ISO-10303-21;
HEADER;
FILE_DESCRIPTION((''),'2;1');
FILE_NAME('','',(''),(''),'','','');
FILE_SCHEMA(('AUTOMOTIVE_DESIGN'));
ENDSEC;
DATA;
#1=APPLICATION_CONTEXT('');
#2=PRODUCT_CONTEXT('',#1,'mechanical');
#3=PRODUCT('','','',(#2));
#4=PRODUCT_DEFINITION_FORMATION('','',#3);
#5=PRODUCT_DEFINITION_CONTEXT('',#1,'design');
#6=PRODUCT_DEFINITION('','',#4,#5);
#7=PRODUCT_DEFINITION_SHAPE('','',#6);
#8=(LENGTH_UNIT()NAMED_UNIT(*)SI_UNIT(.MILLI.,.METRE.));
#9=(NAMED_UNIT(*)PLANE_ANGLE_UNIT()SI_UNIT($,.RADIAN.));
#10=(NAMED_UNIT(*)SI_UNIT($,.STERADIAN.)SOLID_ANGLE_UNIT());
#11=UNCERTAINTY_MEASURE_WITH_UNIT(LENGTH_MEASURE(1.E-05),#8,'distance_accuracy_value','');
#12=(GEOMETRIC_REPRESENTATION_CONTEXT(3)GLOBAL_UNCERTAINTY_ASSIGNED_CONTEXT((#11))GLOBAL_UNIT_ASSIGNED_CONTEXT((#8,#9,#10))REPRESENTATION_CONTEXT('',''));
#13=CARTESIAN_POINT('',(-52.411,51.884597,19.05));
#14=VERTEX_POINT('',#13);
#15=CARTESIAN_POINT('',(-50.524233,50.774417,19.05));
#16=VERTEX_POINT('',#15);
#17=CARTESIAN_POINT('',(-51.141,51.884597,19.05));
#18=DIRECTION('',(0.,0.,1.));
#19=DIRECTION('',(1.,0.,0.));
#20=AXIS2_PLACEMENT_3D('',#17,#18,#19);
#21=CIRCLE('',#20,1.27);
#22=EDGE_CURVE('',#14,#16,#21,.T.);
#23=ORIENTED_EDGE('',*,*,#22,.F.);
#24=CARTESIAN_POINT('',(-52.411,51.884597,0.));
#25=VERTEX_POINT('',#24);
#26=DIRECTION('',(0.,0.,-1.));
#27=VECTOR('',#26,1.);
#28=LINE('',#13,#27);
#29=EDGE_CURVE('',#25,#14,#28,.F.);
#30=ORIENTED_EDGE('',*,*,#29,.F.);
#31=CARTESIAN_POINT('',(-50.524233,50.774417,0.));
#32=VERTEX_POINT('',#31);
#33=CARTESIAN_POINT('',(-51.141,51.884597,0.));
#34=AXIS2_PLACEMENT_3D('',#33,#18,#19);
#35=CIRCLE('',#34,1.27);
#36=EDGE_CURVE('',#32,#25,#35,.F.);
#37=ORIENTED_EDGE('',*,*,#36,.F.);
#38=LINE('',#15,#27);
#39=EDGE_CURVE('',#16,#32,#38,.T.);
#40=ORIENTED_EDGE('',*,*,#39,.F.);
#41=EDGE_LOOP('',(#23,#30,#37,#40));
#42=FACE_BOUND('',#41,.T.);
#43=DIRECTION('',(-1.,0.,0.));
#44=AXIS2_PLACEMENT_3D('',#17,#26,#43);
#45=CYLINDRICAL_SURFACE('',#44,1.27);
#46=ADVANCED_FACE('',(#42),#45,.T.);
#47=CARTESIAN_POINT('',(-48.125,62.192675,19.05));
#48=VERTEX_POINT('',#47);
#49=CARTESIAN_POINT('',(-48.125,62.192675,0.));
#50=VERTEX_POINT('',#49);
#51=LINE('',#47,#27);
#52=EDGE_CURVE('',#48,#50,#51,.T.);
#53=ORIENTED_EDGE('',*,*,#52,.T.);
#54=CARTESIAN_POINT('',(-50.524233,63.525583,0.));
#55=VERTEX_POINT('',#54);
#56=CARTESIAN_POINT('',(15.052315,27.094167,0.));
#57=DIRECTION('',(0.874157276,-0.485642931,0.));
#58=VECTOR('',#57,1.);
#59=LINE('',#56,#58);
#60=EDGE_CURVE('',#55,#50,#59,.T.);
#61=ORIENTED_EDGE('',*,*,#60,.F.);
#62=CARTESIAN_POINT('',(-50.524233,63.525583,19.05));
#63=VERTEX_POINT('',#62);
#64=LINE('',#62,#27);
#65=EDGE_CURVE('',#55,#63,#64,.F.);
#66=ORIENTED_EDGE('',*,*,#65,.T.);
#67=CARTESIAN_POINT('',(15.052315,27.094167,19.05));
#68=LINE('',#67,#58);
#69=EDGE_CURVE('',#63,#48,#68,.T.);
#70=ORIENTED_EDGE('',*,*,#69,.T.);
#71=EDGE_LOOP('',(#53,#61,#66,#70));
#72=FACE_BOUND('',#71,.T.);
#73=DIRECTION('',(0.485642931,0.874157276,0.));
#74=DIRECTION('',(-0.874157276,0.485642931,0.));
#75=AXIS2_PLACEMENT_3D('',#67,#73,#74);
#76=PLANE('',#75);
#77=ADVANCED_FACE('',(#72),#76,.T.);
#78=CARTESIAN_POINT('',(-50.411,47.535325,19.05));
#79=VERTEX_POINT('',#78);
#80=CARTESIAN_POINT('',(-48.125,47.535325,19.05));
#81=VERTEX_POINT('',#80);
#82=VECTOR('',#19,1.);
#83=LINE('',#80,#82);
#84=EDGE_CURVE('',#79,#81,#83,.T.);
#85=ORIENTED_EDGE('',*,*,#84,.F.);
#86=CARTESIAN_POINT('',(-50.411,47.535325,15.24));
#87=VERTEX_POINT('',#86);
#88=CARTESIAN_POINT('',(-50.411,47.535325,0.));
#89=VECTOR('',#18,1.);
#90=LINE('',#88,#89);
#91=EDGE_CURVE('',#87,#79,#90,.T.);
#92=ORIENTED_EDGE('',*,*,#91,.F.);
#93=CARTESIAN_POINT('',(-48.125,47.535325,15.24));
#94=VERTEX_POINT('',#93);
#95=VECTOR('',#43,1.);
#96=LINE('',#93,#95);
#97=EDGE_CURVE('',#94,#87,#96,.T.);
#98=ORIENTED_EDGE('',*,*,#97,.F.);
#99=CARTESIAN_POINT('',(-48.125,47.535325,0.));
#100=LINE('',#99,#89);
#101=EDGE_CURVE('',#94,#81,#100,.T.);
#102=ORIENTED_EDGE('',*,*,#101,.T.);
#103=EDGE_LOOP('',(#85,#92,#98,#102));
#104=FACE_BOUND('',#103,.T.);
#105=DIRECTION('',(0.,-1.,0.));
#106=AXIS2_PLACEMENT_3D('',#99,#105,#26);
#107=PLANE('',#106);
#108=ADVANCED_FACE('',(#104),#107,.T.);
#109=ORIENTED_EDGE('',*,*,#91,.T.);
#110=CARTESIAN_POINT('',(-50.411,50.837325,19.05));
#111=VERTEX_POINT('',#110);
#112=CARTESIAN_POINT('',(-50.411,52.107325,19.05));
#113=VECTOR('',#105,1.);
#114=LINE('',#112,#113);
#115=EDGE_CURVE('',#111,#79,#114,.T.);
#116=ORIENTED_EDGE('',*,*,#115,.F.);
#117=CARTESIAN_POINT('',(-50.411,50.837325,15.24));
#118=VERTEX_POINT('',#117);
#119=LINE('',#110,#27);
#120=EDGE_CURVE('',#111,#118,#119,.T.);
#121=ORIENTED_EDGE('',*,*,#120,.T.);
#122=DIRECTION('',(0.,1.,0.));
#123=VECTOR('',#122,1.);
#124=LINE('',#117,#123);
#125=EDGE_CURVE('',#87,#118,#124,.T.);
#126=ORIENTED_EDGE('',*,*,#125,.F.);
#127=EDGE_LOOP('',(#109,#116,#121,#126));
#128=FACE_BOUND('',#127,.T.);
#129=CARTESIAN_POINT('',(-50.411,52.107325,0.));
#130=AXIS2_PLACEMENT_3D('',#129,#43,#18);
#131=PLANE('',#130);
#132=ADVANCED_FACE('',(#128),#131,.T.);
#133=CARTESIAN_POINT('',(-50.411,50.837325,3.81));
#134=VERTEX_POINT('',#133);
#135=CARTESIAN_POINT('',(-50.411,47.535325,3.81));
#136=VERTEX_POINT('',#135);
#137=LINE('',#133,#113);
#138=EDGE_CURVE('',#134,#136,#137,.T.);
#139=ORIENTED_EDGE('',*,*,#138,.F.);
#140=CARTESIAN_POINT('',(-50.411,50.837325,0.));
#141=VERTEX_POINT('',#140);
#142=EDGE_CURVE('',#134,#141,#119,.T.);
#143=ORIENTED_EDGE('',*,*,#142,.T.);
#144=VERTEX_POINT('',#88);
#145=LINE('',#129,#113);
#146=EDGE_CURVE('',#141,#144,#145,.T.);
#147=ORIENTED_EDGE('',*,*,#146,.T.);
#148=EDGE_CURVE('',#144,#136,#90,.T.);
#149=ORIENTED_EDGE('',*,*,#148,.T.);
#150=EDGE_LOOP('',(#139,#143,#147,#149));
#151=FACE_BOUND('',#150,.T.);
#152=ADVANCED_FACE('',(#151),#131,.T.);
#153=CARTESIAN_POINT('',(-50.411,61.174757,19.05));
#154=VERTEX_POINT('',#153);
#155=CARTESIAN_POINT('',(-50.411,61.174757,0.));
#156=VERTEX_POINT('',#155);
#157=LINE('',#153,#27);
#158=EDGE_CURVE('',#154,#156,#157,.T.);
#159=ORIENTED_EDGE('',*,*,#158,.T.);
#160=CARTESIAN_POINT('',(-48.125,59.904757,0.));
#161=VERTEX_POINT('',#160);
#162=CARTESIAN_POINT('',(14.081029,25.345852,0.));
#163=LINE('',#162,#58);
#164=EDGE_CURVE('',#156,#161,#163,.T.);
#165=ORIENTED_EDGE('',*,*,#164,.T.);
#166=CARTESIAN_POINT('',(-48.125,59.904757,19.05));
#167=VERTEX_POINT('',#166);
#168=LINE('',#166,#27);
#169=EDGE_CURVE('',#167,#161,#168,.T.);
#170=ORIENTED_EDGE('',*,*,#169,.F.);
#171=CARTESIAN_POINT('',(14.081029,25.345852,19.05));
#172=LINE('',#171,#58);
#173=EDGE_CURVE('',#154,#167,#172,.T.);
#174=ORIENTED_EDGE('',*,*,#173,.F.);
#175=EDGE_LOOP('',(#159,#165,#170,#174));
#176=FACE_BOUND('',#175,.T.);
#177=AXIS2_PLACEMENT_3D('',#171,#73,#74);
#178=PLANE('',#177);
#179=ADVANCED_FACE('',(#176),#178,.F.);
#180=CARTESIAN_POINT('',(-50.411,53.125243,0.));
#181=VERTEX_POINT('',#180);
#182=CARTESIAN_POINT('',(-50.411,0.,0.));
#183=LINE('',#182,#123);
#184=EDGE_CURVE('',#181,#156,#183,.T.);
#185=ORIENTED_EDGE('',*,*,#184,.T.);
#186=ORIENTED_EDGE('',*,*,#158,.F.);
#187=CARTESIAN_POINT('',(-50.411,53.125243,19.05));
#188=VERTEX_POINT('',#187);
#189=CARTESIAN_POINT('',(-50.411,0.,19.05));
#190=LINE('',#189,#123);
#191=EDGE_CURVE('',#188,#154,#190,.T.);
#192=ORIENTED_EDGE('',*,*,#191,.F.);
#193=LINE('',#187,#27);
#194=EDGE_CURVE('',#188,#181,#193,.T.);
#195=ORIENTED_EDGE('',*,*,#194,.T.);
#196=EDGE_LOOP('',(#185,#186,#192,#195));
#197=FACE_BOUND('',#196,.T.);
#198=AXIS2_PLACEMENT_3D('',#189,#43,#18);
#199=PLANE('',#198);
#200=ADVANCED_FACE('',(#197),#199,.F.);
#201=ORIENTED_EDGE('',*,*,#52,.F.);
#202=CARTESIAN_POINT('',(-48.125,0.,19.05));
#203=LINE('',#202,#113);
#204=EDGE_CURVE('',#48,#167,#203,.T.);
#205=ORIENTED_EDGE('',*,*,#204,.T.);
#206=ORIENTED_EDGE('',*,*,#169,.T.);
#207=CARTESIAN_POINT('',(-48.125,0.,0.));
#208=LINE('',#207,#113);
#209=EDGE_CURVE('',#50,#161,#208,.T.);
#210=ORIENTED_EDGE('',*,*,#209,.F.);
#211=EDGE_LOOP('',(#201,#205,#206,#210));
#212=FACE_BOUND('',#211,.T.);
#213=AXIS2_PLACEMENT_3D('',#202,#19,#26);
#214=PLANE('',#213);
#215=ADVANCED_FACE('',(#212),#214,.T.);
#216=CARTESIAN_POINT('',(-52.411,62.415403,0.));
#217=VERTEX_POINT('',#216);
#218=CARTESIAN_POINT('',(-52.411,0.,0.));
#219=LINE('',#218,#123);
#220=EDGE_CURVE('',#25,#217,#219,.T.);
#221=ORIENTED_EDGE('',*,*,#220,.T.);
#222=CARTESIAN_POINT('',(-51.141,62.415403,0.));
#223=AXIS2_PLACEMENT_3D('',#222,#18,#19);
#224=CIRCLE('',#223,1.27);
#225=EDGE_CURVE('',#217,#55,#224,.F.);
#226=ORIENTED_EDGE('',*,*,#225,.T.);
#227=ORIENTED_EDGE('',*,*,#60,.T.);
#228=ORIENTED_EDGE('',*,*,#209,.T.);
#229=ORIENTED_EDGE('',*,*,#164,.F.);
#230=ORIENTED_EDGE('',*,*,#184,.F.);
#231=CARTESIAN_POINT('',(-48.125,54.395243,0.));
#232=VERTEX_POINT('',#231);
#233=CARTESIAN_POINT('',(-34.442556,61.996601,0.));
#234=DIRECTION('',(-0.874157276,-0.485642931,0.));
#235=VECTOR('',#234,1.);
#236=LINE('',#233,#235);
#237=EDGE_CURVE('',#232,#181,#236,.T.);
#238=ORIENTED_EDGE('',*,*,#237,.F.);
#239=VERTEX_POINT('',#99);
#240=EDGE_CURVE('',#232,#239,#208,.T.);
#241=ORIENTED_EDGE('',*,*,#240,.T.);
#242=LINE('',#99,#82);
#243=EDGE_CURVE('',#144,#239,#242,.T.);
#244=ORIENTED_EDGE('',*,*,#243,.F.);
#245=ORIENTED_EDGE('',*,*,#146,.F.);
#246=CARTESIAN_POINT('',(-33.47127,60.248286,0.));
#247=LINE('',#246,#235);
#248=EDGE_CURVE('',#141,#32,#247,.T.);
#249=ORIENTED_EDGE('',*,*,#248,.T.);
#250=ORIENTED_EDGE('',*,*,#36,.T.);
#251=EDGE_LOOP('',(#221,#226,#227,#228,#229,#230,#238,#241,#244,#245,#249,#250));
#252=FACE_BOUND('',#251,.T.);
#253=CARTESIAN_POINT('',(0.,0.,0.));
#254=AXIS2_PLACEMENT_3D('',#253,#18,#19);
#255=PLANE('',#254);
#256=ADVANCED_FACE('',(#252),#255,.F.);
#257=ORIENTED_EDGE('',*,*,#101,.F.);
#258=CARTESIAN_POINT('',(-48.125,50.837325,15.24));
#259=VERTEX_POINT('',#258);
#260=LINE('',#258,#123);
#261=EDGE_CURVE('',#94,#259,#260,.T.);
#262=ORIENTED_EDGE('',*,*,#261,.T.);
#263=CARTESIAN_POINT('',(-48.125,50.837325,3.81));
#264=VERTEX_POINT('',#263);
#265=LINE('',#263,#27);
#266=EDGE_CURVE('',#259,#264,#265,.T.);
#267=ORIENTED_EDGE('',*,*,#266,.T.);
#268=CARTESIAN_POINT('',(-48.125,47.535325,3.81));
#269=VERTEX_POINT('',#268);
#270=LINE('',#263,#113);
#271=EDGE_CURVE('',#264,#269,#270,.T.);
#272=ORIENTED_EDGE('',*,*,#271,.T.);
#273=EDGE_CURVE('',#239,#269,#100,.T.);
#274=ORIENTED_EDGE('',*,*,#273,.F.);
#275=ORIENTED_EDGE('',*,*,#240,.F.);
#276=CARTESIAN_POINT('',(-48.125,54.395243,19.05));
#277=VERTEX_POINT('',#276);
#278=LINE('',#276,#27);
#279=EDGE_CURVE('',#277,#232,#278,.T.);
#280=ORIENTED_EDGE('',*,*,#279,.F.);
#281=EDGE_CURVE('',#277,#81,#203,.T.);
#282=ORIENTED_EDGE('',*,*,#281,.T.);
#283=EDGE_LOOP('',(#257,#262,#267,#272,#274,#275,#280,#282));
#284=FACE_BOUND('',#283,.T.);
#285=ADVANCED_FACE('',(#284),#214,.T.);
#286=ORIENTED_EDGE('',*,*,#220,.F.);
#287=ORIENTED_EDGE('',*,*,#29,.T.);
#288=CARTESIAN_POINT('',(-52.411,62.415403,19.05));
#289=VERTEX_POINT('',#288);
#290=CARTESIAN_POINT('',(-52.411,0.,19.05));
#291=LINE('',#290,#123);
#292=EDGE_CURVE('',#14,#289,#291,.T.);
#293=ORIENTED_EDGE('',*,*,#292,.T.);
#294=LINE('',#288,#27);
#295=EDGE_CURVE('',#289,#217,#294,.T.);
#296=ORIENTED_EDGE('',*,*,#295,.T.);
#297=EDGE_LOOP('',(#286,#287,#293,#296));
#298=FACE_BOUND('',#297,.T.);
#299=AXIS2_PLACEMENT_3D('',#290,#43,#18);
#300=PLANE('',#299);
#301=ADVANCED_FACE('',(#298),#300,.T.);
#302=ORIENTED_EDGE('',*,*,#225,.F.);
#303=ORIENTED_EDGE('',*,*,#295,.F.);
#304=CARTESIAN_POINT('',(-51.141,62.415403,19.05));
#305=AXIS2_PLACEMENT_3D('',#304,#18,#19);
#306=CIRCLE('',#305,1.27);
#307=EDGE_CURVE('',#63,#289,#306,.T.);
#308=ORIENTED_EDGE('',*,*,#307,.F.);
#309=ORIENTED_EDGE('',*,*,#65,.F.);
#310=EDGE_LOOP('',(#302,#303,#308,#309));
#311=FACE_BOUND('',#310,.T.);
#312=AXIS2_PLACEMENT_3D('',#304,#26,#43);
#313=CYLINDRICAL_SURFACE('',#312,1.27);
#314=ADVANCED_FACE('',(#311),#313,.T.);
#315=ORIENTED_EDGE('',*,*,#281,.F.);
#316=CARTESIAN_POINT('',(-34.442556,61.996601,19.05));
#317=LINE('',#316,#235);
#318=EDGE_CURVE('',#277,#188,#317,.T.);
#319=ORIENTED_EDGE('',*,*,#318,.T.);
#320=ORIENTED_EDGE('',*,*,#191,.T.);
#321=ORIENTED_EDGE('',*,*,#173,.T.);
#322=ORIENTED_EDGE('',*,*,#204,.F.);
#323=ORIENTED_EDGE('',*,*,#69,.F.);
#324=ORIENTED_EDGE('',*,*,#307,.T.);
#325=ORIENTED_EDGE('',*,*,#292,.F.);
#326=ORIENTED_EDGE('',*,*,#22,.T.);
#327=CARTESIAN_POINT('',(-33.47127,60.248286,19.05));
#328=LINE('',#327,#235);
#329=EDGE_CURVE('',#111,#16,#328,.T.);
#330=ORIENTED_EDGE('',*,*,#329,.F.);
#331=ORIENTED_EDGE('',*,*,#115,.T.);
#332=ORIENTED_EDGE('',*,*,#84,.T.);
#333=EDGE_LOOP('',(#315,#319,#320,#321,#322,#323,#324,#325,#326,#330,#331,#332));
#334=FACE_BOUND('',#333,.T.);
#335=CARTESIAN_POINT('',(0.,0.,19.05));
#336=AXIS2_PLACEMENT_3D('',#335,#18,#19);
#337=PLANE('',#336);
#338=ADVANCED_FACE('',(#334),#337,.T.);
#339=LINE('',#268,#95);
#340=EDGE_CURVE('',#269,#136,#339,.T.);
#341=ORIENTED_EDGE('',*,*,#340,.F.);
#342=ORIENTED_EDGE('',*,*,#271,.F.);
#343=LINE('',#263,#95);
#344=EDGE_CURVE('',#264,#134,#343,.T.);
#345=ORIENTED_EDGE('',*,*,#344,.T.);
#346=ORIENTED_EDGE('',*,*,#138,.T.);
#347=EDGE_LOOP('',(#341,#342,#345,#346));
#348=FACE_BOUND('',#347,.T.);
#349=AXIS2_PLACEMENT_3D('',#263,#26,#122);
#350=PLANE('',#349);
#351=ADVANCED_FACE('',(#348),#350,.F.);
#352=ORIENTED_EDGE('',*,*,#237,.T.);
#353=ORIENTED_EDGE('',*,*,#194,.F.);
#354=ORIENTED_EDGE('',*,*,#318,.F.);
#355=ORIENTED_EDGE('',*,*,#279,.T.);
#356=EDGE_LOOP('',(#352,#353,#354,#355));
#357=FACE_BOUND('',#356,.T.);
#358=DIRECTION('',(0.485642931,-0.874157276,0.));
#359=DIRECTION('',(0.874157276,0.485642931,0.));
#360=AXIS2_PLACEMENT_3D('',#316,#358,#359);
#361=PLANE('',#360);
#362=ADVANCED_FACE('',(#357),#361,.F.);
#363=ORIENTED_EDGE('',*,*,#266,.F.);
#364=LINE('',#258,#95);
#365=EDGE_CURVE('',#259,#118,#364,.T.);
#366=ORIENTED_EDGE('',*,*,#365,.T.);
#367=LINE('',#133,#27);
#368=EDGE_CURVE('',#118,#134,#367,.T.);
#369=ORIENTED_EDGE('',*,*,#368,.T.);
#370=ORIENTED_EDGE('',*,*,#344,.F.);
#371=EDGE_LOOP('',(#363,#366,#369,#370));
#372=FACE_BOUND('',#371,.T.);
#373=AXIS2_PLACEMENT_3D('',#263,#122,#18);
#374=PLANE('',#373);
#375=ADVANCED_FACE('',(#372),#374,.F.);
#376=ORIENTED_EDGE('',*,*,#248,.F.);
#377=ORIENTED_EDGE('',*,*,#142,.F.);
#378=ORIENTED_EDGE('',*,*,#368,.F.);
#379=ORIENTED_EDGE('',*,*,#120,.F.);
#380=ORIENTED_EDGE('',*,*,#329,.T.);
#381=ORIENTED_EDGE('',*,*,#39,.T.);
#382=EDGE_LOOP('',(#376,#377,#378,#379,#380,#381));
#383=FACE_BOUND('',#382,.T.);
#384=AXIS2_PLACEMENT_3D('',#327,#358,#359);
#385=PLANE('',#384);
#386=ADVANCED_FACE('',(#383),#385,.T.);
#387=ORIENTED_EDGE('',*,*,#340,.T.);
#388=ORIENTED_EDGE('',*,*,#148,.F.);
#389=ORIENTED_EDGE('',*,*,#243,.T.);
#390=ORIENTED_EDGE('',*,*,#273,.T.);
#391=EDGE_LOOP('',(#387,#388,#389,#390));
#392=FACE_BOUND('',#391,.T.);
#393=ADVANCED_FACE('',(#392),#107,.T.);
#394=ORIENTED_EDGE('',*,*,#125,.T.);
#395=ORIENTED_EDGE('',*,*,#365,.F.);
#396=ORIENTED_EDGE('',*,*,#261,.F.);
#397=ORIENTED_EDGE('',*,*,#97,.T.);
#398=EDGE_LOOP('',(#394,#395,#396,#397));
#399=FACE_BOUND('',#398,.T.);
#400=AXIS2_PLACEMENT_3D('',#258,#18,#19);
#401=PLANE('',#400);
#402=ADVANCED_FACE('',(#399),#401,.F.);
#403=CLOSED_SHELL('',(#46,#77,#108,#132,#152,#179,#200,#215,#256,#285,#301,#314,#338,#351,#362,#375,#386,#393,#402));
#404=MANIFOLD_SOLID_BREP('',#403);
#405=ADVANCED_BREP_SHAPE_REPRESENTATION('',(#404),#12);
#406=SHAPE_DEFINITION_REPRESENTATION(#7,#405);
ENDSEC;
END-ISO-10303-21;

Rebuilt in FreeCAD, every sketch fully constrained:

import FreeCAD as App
import Part
import Sketcher
Q = App.Units.Quantity


def edges_at(feature, points):
    """Names of the edges that pass closest to the given points."""
    edges = feature.Shape.Edges
    near = lambda p: min(range(len(edges)), key=lambda i: edges[i].distToShape(Part.Vertex(*p))[0])
    return sorted({f"Edge{near(p) + 1}" for p in points})


def add_polygon(sketch, points):
    """Adds a closed chain of lines whose ends are joined by coincident constraints."""
    first, n = sketch.GeometryCount, len(points)
    for a, b in zip(points, points[1:] + points[:1]):
        sketch.addGeometry(Part.LineSegment(App.Vector(*a, 0), App.Vector(*b, 0)), False)
    for i in range(n):
        sketch.addConstraint(Sketcher.Constraint("Coincident", first + i, 2, first + (i + 1) % n, 1))

doc = App.newDocument("Part")
body = doc.addObject("PartDesign::Body", "Body")

# Sketch on XY plane
sketch1 = body.newObject("Sketcher::SketchObject", "Sketch")
sketch1.AttachmentSupport = (doc.getObject("XY_Plane"), [""])
sketch1.MapMode = "FlatFace"
add_polygon(sketch1, [(-50.4, 53.1), (-50.4, 61.2), (-48.1, 59.9), (-48.1, 62.2), (-52.4, 64.6), (-52.4, 49.7), (-48.1, 52.1), (-48.1, 54.4)])  # lines 0-7
sketch1.addConstraint([
    Sketcher.Constraint("Vertical", 0),
    Sketcher.Constraint("Vertical", 2),
    Sketcher.Constraint("Vertical", 4),
    Sketcher.Constraint("Vertical", 6),
    Sketcher.Constraint("Parallel", 1, 3),
    Sketcher.Constraint("Parallel", 5, 7),
    Sketcher.Constraint("Vertical", 2, 2, 5, 2),
    Sketcher.Constraint("Equal", 2, 6),
    Sketcher.Constraint("Equal", 3, 5),
    Sketcher.Constraint("DistanceX", 0, 2, 1, 2, Q("0.09 in")),
    Sketcher.Constraint("DistanceY", 1, 2, 0, 2, Q("0.05 in")),
    Sketcher.Constraint("DistanceX", 0, 2, -1, 1, Q("50.411 mm")),
    Sketcher.Constraint("DistanceX", 3, 2, -1, 1, Q("52.411 mm")),
    Sketcher.Constraint("DistanceY", 0, 1, 0, 2, Q("8.049514 mm")),
    Sketcher.Constraint("DistanceY", 2, 1, 2, 2, Q("2.287918 mm")),
    Sketcher.Constraint("DistanceY", -1, 1, 0, 2, Q("61.174757 mm")),
])
pad1 = body.newObject("PartDesign::Pad", "Pad")
pad1.Profile = sketch1
pad1.Length = Q("0.75 in")
doc.recompute()

fillet = body.newObject("PartDesign::Fillet", "Fillet")
fillet.Base = (pad1, edges_at(pad1, [(-52.411, 49.726, 9.525), (-52.411, 64.574, 9.525)]))
fillet.Radius = Q("0.05 in")

# Sketch on XY plane
sketch2 = body.newObject("Sketcher::SketchObject", "Sketch001")
sketch2.AttachmentSupport = (doc.getObject("XY_Plane"), [""])
sketch2.MapMode = "FlatFace"
sketch2.AttachmentOffset = App.Placement(App.Vector(0, 0, 0.75 * 25.4), App.Rotation())
add_polygon(sketch2, [(-50.4, 52.1), (-50.4, 47.5), (-48.1, 47.5), (-48.1, 52.1)])  # lines 0-3
sketch2.addConstraint([
    Sketcher.Constraint("Vertical", 0),
    Sketcher.Constraint("Horizontal", 1),
    Sketcher.Constraint("Vertical", 2),
    Sketcher.Constraint("Horizontal", 3),
    Sketcher.Constraint("DistanceX", 1, 1, 1, 2, Q("0.09 in")),
    Sketcher.Constraint("DistanceY", 0, 2, 0, 1, Q("0.18 in")),
    Sketcher.Constraint("DistanceX", 0, 2, -1, 1, Q("50.411 mm")),
    Sketcher.Constraint("DistanceY", -1, 1, 0, 2, Q("47.535325 mm")),
])
pad2 = body.newObject("PartDesign::Pad", "Pad001")
pad2.Profile = sketch2
pad2.Length = Q("0.75 in")
pad2.Reversed = True

# Sketch on YZ plane
sketch3 = body.newObject("Sketcher::SketchObject", "Sketch002")
sketch3.AttachmentSupport = (doc.getObject("YZ_Plane"), [""])
sketch3.MapMode = "FlatFace"
sketch3.AttachmentOffset = App.Placement(App.Vector(0, 0, -50.411), App.Rotation())
add_polygon(sketch3, [(50.8, 3.8), (47.5, 3.8), (47.5, 15.2), (50.8, 15.2)])  # lines 0-3
sketch3.addConstraint([
    Sketcher.Constraint("Horizontal", 0),
    Sketcher.Constraint("Vertical", 1),
    Sketcher.Constraint("Horizontal", 2),
    Sketcher.Constraint("Vertical", 3),
    Sketcher.Constraint("DistanceX", 0, 2, 0, 1, Q("0.13 in")),
    Sketcher.Constraint("DistanceY", 1, 1, 1, 2, Q("0.45 in")),
    Sketcher.Constraint("DistanceY", -1, 1, 1, 2, Q("0.6 in")),
    Sketcher.Constraint("DistanceX", -1, 1, 0, 2, Q("47.535325 mm")),
])
pocket1 = body.newObject("PartDesign::Pocket", "Pocket")
pocket1.Profile = sketch3
pocket1.Type = "ThroughAll"
pocket1.Reversed = True

doc.recompute()
